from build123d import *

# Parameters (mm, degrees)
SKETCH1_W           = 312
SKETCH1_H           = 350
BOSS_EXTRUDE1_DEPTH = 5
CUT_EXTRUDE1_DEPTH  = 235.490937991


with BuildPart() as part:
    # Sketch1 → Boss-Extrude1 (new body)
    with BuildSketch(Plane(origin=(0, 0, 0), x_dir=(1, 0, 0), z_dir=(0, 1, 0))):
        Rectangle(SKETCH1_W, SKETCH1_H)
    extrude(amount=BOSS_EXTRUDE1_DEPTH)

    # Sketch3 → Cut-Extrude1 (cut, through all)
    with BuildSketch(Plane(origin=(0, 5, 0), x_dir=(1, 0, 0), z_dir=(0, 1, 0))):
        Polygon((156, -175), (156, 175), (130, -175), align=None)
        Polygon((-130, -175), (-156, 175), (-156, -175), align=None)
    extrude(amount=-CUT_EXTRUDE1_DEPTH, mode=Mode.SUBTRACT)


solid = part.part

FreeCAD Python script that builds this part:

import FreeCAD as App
import Part
import Sketcher
Q = App.Units.Quantity

doc = App.newDocument("Part")
body = doc.addObject("PartDesign::Body", "Body")

# Sketch on XZ plane
sketch1 = body.newObject("Sketcher::SketchObject", "Sketch")
sketch1.AttachmentSupport = (doc.getObject("XZ_Plane"), [""])
sketch1.MapMode = "FlatFace"
sketch1.addGeometry(Part.LineSegment(App.Vector(-156, -175, 0), App.Vector(-156, 175, 0)), False)
sketch1.addGeometry(Part.LineSegment(App.Vector(-156, 175, 0), App.Vector(156, 175, 0)), False)
sketch1.addGeometry(Part.LineSegment(App.Vector(156, 175, 0), App.Vector(156, -175, 0)), False)
sketch1.addGeometry(Part.LineSegment(App.Vector(156, -175, 0), App.Vector(-156, -175, 0)), False)
sketch1.addConstraint(Sketcher.Constraint("Coincident", 0, 2, 1, 1))
sketch1.addConstraint(Sketcher.Constraint("Coincident", 1, 2, 2, 1))
sketch1.addConstraint(Sketcher.Constraint("Coincident", 2, 2, 3, 1))
sketch1.addConstraint(Sketcher.Constraint("Coincident", 3, 2, 0, 1))
sketch1.addConstraint(Sketcher.Constraint("Vertical", 0))
sketch1.addConstraint(Sketcher.Constraint("Horizontal", 1))
sketch1.addConstraint(Sketcher.Constraint("Vertical", 2))
sketch1.addConstraint(Sketcher.Constraint("Horizontal", 3))
sketch1.addConstraint(Sketcher.Constraint("Symmetric", 0, 2, 2, 2, -1, 1))
sketch1.addConstraint(Sketcher.Constraint("DistanceX", 1, 1, 1, 2, Q("312 mm")))
sketch1.addConstraint(Sketcher.Constraint("DistanceY", 0, 1, 0, 2, Q("350 mm")))
pad1 = body.newObject("PartDesign::Pad", "Pad")
pad1.Profile = sketch1
pad1.Length = 5
pad1.Reversed = True

# Sketch on XZ plane
sketch2 = body.newObject("Sketcher::SketchObject", "Sketch001")
sketch2.AttachmentSupport = (doc.getObject("XZ_Plane"), [""])
sketch2.MapMode = "FlatFace"
sketch2.AttachmentOffset = App.Placement(App.Vector(0, 0, -5), App.Rotation())
sketch2.addGeometry(Part.LineSegment(App.Vector(156, 175, 0), App.Vector(156, -175, 0)), False)
sketch2.addGeometry(Part.LineSegment(App.Vector(156, -175, 0), App.Vector(130, 175, 0)), False)
sketch2.addGeometry(Part.LineSegment(App.Vector(130, 175, 0), App.Vector(156, 175, 0)), False)
sketch2.addGeometry(Part.LineSegment(App.Vector(-130, 175, 0), App.Vector(-156, -175, 0)), False)
sketch2.addGeometry(Part.LineSegment(App.Vector(-156, -175, 0), App.Vector(-156, 175, 0)), False)
sketch2.addGeometry(Part.LineSegment(App.Vector(-156, 175, 0), App.Vector(-130, 175, 0)), False)
sketch2.addConstraint(Sketcher.Constraint("Coincident", 0, 2, 1, 1))
sketch2.addConstraint(Sketcher.Constraint("Coincident", 1, 2, 2, 1))
sketch2.addConstraint(Sketcher.Constraint("Coincident", 2, 2, 0, 1))
sketch2.addConstraint(Sketcher.Constraint("Coincident", 3, 2, 4, 1))
sketch2.addConstraint(Sketcher.Constraint("Coincident", 4, 2, 5, 1))
sketch2.addConstraint(Sketcher.Constraint("Coincident", 5, 2, 3, 1))
sketch2.addConstraint(Sketcher.Constraint("Vertical", 0))
sketch2.addConstraint(Sketcher.Constraint("Horizontal", 2))
sketch2.addConstraint(Sketcher.Constraint("Vertical", 4))
sketch2.addConstraint(Sketcher.Constraint("Horizontal", 5))
sketch2.addConstraint(Sketcher.Constraint("Symmetric", 2, 2, 3, 2, -1, 1))
sketch2.addConstraint(Sketcher.Constraint("Symmetric", 1, 2, 5, 2, -2))
sketch2.addConstraint(Sketcher.Constraint("Horizontal", 0, 2, 3, 2))
sketch2.addConstraint(Sketcher.Constraint("DistanceX", 2, 1, 2, 2, Q("26 mm")))
sketch2.addConstraint(Sketcher.Constraint("DistanceY", 0, 2, 0, 1, Q("350 mm")))
sketch2.addConstraint(Sketcher.Constraint("DistanceX", -1, 1, 0, 2, Q("156 mm")))
pocket1 = body.newObject("PartDesign::Pocket", "Pocket")
pocket1.Profile = sketch2
pocket1.Type = "ThroughAll"
pocket1.Reversed = True

doc.recompute()
